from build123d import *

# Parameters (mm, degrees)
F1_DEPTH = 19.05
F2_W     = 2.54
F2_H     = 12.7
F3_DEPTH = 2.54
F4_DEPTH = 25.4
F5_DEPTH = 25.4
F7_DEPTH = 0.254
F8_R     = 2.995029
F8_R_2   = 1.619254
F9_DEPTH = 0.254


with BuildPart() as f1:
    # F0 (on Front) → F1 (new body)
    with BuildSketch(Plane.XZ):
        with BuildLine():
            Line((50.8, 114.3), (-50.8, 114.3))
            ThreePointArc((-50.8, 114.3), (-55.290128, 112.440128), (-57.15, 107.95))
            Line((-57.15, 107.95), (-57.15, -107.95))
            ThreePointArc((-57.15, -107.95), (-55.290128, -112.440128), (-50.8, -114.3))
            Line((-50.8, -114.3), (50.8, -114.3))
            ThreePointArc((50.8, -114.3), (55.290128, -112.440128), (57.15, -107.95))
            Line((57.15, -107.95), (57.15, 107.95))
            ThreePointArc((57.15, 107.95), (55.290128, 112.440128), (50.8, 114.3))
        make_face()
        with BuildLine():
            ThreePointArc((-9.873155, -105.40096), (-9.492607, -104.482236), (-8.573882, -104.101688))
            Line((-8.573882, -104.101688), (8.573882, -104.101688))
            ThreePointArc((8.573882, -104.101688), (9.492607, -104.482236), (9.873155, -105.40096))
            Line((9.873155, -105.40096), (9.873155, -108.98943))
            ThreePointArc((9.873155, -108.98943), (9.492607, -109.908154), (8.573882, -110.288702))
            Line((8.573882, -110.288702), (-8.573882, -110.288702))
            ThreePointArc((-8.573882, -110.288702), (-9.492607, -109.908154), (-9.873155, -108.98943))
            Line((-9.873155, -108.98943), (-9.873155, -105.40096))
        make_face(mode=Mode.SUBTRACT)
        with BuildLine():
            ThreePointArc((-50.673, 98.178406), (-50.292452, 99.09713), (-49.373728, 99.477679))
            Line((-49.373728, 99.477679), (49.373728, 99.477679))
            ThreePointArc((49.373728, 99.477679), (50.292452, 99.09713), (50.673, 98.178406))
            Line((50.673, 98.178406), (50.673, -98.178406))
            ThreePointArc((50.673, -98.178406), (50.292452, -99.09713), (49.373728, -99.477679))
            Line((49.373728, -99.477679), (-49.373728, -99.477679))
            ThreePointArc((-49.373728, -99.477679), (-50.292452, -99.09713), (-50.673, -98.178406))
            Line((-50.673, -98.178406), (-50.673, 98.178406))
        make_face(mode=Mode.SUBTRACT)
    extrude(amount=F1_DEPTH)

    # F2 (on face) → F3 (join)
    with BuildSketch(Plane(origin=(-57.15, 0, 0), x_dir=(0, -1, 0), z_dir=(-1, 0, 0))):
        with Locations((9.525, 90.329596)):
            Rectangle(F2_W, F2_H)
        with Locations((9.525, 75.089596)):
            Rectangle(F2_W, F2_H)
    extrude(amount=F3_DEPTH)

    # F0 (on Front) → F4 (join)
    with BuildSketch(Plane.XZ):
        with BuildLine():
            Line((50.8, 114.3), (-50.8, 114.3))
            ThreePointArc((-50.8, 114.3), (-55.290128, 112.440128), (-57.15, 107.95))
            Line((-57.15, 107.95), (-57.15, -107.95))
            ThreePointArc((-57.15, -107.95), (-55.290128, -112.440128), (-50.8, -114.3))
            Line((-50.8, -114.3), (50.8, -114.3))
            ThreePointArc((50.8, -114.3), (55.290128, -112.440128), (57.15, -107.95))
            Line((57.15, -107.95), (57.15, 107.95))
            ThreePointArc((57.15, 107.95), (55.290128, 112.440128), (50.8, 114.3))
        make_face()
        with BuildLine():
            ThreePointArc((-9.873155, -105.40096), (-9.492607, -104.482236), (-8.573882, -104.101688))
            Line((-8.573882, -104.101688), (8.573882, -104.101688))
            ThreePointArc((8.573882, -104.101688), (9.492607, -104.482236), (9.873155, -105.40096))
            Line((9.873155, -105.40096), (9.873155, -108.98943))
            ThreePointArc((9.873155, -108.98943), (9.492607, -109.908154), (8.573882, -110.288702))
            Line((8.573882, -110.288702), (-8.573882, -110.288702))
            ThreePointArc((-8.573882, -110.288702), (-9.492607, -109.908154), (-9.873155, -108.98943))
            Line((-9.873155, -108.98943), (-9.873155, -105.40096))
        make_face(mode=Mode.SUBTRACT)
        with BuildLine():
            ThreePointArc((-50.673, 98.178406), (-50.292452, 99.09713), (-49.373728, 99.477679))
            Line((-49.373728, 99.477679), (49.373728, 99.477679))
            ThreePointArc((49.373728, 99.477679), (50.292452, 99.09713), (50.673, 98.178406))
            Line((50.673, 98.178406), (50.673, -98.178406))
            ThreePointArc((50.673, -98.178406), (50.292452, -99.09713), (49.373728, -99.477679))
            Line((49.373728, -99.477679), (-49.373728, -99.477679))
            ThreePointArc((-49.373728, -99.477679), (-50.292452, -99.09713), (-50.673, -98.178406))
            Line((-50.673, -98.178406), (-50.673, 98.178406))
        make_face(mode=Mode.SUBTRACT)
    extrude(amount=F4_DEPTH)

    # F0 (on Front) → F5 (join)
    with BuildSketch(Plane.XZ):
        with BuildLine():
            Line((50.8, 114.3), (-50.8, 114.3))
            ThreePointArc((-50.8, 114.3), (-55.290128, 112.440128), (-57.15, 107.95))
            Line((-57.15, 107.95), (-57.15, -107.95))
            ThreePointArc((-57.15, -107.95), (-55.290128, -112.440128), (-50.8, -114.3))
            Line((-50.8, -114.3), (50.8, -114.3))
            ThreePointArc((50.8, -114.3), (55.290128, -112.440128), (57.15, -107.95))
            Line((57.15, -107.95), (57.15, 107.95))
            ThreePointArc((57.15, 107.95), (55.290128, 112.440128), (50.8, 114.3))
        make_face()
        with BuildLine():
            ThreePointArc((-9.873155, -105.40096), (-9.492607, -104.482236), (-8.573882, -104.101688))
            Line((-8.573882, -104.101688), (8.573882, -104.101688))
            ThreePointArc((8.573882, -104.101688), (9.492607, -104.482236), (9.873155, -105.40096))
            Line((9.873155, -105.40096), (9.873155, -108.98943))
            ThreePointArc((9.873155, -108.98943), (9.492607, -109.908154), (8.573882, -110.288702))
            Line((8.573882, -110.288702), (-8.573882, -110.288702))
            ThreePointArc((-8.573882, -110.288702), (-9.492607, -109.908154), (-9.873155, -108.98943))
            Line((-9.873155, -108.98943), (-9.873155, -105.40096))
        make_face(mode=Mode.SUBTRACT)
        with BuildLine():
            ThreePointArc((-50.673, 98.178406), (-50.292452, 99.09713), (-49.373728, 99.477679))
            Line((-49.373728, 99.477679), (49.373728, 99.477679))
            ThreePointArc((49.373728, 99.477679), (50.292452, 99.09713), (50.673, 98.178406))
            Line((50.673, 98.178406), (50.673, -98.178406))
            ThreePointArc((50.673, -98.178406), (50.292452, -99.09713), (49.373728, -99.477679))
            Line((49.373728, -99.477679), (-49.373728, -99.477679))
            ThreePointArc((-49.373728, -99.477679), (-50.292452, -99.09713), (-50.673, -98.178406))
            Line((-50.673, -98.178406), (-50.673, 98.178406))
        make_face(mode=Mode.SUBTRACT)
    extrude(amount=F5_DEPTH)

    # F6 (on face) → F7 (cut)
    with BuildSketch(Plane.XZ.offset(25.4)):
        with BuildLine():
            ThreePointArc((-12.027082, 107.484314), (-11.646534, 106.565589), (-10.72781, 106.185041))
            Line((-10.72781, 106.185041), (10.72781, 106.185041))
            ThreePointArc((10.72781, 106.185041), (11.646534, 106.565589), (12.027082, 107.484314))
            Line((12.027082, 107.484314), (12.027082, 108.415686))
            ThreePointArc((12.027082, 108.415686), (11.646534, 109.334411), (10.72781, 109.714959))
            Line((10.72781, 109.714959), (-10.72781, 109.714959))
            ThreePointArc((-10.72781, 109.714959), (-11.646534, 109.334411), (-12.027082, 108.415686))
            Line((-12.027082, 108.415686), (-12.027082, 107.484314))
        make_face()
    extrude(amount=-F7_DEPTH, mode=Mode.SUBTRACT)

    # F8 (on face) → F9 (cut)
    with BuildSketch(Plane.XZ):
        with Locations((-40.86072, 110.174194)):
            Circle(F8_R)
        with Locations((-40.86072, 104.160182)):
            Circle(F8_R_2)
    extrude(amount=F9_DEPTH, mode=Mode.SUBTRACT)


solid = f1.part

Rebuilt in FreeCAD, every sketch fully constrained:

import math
import FreeCAD as App
import Part
import Sketcher
from FreeCAD import Vector
Q = App.Units.Quantity


def add_polygon(sketch, points):
    """Adds a closed chain of lines whose ends are joined by coincident constraints."""
    first, n = sketch.GeometryCount, len(points)
    for a, b in zip(points, points[1:] + points[:1]):
        sketch.addGeometry(Part.LineSegment(App.Vector(*a, 0), App.Vector(*b, 0)), False)
    for i in range(n):
        sketch.addConstraint(Sketcher.Constraint("Coincident", first + i, 2, first + (i + 1) % n, 1))

doc = App.newDocument("Part")
body = doc.addObject("PartDesign::Body", "Body")

# Sketch on XZ plane
sketch1 = doc.addObject("Sketcher::SketchObject", "Sketch")
body.addObject(sketch1)
sketch1.AttachmentSupport = (doc.XZ_Plane, [""])
sketch1.MapMode = "FlatFace"
sketch1.addGeometry([
    Part.LineSegment(Vector(50.8, 114.3, 0), Vector(-50.8, 114.3, 0)),  # 0
    Part.ArcOfCircle(Part.Circle(Vector(-50.8, 107.95, 0), Vector(0, 0, 1), 6.35), math.radians(90.000002), math.radians(179.999998)),  # 1
    Part.LineSegment(Vector(-57.15, 107.95, 0), Vector(-57.15, -107.95, 0)),  # 2
    Part.ArcOfCircle(Part.Circle(Vector(-50.8, -107.95, 0), Vector(0, 0, 1), 6.35), math.radians(-179.999998), math.radians(-90.000002)),  # 3
    Part.LineSegment(Vector(-50.8, -114.3, 0), Vector(50.8, -114.3, 0)),  # 4
    Part.ArcOfCircle(Part.Circle(Vector(50.8, -107.95, 0), Vector(0, 0, 1), 6.35), math.radians(-89.999998), math.radians(-0.000002)),  # 5
    Part.LineSegment(Vector(57.15, -107.95, 0), Vector(57.15, 107.95, 0)),  # 6
    Part.ArcOfCircle(Part.Circle(Vector(50.8, 107.95, 0), Vector(0, 0, 1), 6.35), math.radians(0.000002), math.radians(89.999998)),  # 7
    Part.LineSegment(Vector(-9.873155, -108.98943, 0), Vector(-9.873155, -105.40096, 0)),  # 8
    Part.ArcOfCircle(Part.Circle(Vector(-8.573883, -105.40096, 0), Vector(0, 0, 1), 1.299272), math.radians(89.999962), math.radians(179.999994)),  # 9
    Part.LineSegment(Vector(-8.573882, -104.101688, 0), Vector(8.573882, -104.101688, 0)),  # 10
    Part.ArcOfCircle(Part.Circle(Vector(8.573883, -105.40096, 0), Vector(0, 0, 1), 1.299272), math.radians(0.000006), math.radians(90.000038)),  # 11
    Part.LineSegment(Vector(9.873155, -105.40096, 0), Vector(9.873155, -108.98943, 0)),  # 12
    Part.ArcOfCircle(Part.Circle(Vector(8.573883, -108.98943, 0), Vector(0, 0, 1), 1.299272), math.radians(-90.000038), math.radians(-0.000006)),  # 13
    Part.LineSegment(Vector(8.573882, -110.288702, 0), Vector(-8.573882, -110.288702, 0)),  # 14
    Part.ArcOfCircle(Part.Circle(Vector(-8.573883, -108.98943, 0), Vector(0, 0, 1), 1.299272), math.radians(-179.999994), math.radians(-89.999962)),  # 15
    Part.LineSegment(Vector(-50.673, -98.178406, 0), Vector(-50.673, 98.178406, 0)),  # 16
    Part.ArcOfCircle(Part.Circle(Vector(-49.373726, 98.178405, 0), Vector(0, 0, 1), 1.299274), math.radians(90.000082), math.radians(179.999963)),  # 17
    Part.LineSegment(Vector(-49.373728, 99.477679, 0), Vector(49.373728, 99.477679, 0)),  # 18
    Part.ArcOfCircle(Part.Circle(Vector(49.373726, 98.178405, 0), Vector(0, 0, 1), 1.299274), math.radians(0.000037), math.radians(89.999918)),  # 19
    Part.LineSegment(Vector(50.673, 98.178406, 0), Vector(50.673, -98.178406, 0)),  # 20
    Part.ArcOfCircle(Part.Circle(Vector(49.373726, -98.178405, 0), Vector(0, 0, 1), 1.299274), math.radians(-89.999918), math.radians(-0.000037)),  # 21
    Part.LineSegment(Vector(49.373728, -99.477679, 0), Vector(-49.373728, -99.477679, 0)),  # 22
    Part.ArcOfCircle(Part.Circle(Vector(-49.373726, -98.178405, 0), Vector(0, 0, 1), 1.299274), math.radians(-179.999963), math.radians(-90.000082)),  # 23
], False)
sketch1.addConstraint([
    Sketcher.Constraint("Tangent", 0, 2, 1, 1),
    Sketcher.Constraint("Tangent", 1, 2, 2, 1),
    Sketcher.Constraint("Tangent", 2, 2, 3, 1),
    Sketcher.Constraint("Tangent", 3, 2, 4, 1),
    Sketcher.Constraint("Tangent", 4, 2, 5, 1),
    Sketcher.Constraint("Tangent", 5, 2, 6, 1),
    Sketcher.Constraint("Tangent", 6, 2, 7, 1),
    Sketcher.Constraint("Tangent", 7, 2, 0, 1),
    Sketcher.Constraint("Tangent", 8, 2, 9, 2),
    Sketcher.Constraint("Tangent", 9, 1, 10, 1),
    Sketcher.Constraint("Tangent", 10, 2, 11, 2),
    Sketcher.Constraint("Tangent", 11, 1, 12, 1),
    Sketcher.Constraint("Tangent", 12, 2, 13, 2),
    Sketcher.Constraint("Tangent", 13, 1, 14, 1),
    Sketcher.Constraint("Tangent", 14, 2, 15, 2),
    Sketcher.Constraint("Tangent", 15, 1, 8, 1),
    Sketcher.Constraint("Tangent", 16, 2, 17, 2),
    Sketcher.Constraint("Tangent", 17, 1, 18, 1),
    Sketcher.Constraint("Tangent", 18, 2, 19, 2),
    Sketcher.Constraint("Tangent", 19, 1, 20, 1),
    Sketcher.Constraint("Tangent", 20, 2, 21, 2),
    Sketcher.Constraint("Tangent", 21, 1, 22, 1),
    Sketcher.Constraint("Tangent", 22, 2, 23, 2),
    Sketcher.Constraint("Tangent", 23, 1, 16, 1),
    Sketcher.Constraint("Horizontal", 0),
    Sketcher.Constraint("Vertical", 2),
    Sketcher.Constraint("Horizontal", 4),
    Sketcher.Constraint("Vertical", 6),
    Sketcher.Constraint("Vertical", 8),
    Sketcher.Constraint("Horizontal", 10),
    Sketcher.Constraint("Vertical", 12),
    Sketcher.Constraint("Horizontal", 14),
    Sketcher.Constraint("Vertical", 16),
    Sketcher.Constraint("Horizontal", 18),
    Sketcher.Constraint("Vertical", 20),
    Sketcher.Constraint("Horizontal", 22),
    Sketcher.Constraint("Equal", 1, 3),
    Sketcher.Constraint("Equal", 3, 5),
    Sketcher.Constraint("Equal", 5, 7),
    Sketcher.Constraint("Equal", 9, 11),
    Sketcher.Constraint("Equal", 11, 13),
    Sketcher.Constraint("Equal", 13, 15),
    Sketcher.Constraint("Equal", 15, 17),
    Sketcher.Constraint("Equal", 17, 19),
    Sketcher.Constraint("Equal", 19, 21),
    Sketcher.Constraint("Equal", 21, 23),
    Sketcher.Constraint("Symmetric", 1, 3, 5, 3, -1, 1),
    Sketcher.Constraint("Symmetric", 17, 3, 21, 3, -1, 1),
    Sketcher.Constraint("DistanceX", 0, 2, 0, 1, Q("4 in")),
    Sketcher.Constraint("Radius", 1, Q("0.25 in")),
    Sketcher.Constraint("DistanceY", 2, 2, 2, 1, Q("8.5 in")),
    Sketcher.Constraint("DistanceX", 16, 2, -1, 1, Q("1.995 in")),
    Sketcher.Constraint("Radius", 9, Q("1.299272 mm")),
    Sketcher.Constraint("DistanceY", 8, 2, 22, 2, Q("0.2332 in")),
    Sketcher.Constraint("DistanceY", 8, 1, 8, 2, Q("3.58847 mm")),
    Sketcher.Constraint("DistanceY", 16, 1, 16, 2, Q("196.356812 mm")),
    Sketcher.Constraint("DistanceX", 10, 1, 10, 2, Q("17.147764 mm")),
    Sketcher.Constraint("DistanceX", 9, 1, -1, 1, Q("8.573882 mm")),
])
pad1 = doc.addObject("PartDesign::Pad", "Pad")
body.addObject(pad1)
pad1.Profile = sketch1
pad1.Length = Q("0.75 in")

# Sketch on YZ plane
sketch2 = doc.addObject("Sketcher::SketchObject", "Sketch001")
body.addObject(sketch2)
sketch2.AttachmentSupport = (doc.YZ_Plane, [""])
sketch2.MapMode = "FlatFace"
sketch2.AttachmentOffset = App.Placement(Vector(0, 0, -2.25 * 25.4), App.Rotation())
add_polygon(sketch2, [(-8.255, 96.679596), (-8.255, 83.979596), (-10.795, 83.979596), (-10.795, 96.679596)])  # lines 0-3
add_polygon(sketch2, [(-8.255, 81.439596), (-8.255, 68.739596), (-10.795, 68.739596), (-10.795, 81.439596)])  # lines 4-7
sketch2.addConstraint([
    Sketcher.Constraint("Vertical", 0),
    Sketcher.Constraint("Horizontal", 1),
    Sketcher.Constraint("Vertical", 2),
    Sketcher.Constraint("Horizontal", 3),
    Sketcher.Constraint("Vertical", 4),
    Sketcher.Constraint("Horizontal", 5),
    Sketcher.Constraint("Vertical", 6),
    Sketcher.Constraint("Horizontal", 7),
    Sketcher.Constraint("Vertical", 3, 2, 4, 2),
    Sketcher.Constraint("Vertical", 2, 2, 5, 2),
    Sketcher.Constraint("Equal", 2, 4),
    Sketcher.Constraint("DistanceX", 1, 2, 1, 1, Q("0.1 in")),
    Sketcher.Constraint("DistanceY", 0, 2, 0, 1, Q("0.5 in")),
    Sketcher.Constraint("DistanceY", 4, 2, 0, 2, Q("0.6 in")),
    Sketcher.Constraint("DistanceX", 0, 2, -1, 1, Q("0.325 in")),
    Sketcher.Constraint("DistanceY", -1, 1, 0, 2, Q("83.979596 mm")),
])
pad2 = doc.addObject("PartDesign::Pad", "Pad001")
body.addObject(pad2)
pad2.Profile = sketch2
pad2.Length = Q("0.1 in")
pad2.Reversed = True

# Sketch on XZ plane
sketch3 = doc.addObject("Sketcher::SketchObject", "Sketch002")
body.addObject(sketch3)
sketch3.AttachmentSupport = (doc.XZ_Plane, [""])
sketch3.MapMode = "FlatFace"
sketch3.addGeometry([
    Part.LineSegment(Vector(50.8, 114.3, 0), Vector(-50.8, 114.3, 0)),  # 0
    Part.ArcOfCircle(Part.Circle(Vector(-50.8, 107.95, 0), Vector(0, 0, 1), 6.35), math.radians(90.000002), math.radians(179.999998)),  # 1
    Part.LineSegment(Vector(-57.15, 107.95, 0), Vector(-57.15, -107.95, 0)),  # 2
    Part.ArcOfCircle(Part.Circle(Vector(-50.8, -107.95, 0), Vector(0, 0, 1), 6.35), math.radians(-179.999998), math.radians(-90.000002)),  # 3
    Part.LineSegment(Vector(-50.8, -114.3, 0), Vector(50.8, -114.3, 0)),  # 4
    Part.ArcOfCircle(Part.Circle(Vector(50.8, -107.95, 0), Vector(0, 0, 1), 6.35), math.radians(-89.999998), math.radians(-0.000002)),  # 5
    Part.LineSegment(Vector(57.15, -107.95, 0), Vector(57.15, 107.95, 0)),  # 6
    Part.ArcOfCircle(Part.Circle(Vector(50.8, 107.95, 0), Vector(0, 0, 1), 6.35), math.radians(0.000002), math.radians(89.999998)),  # 7
    Part.LineSegment(Vector(-9.873155, -108.98943, 0), Vector(-9.873155, -105.40096, 0)),  # 8
    Part.ArcOfCircle(Part.Circle(Vector(-8.573883, -105.40096, 0), Vector(0, 0, 1), 1.299272), math.radians(89.999962), math.radians(179.999994)),  # 9
    Part.LineSegment(Vector(-8.573882, -104.101688, 0), Vector(8.573882, -104.101688, 0)),  # 10
    Part.ArcOfCircle(Part.Circle(Vector(8.573883, -105.40096, 0), Vector(0, 0, 1), 1.299272), math.radians(0.000006), math.radians(90.000038)),  # 11
    Part.LineSegment(Vector(9.873155, -105.40096, 0), Vector(9.873155, -108.98943, 0)),  # 12
    Part.ArcOfCircle(Part.Circle(Vector(8.573883, -108.98943, 0), Vector(0, 0, 1), 1.299272), math.radians(-90.000038), math.radians(-0.000006)),  # 13
    Part.LineSegment(Vector(8.573882, -110.288702, 0), Vector(-8.573882, -110.288702, 0)),  # 14
    Part.ArcOfCircle(Part.Circle(Vector(-8.573883, -108.98943, 0), Vector(0, 0, 1), 1.299272), math.radians(-179.999994), math.radians(-89.999962)),  # 15
    Part.LineSegment(Vector(-50.673, -98.178406, 0), Vector(-50.673, 98.178406, 0)),  # 16
    Part.ArcOfCircle(Part.Circle(Vector(-49.373726, 98.178405, 0), Vector(0, 0, 1), 1.299274), math.radians(90.000082), math.radians(179.999963)),  # 17
    Part.LineSegment(Vector(-49.373728, 99.477679, 0), Vector(49.373728, 99.477679, 0)),  # 18
    Part.ArcOfCircle(Part.Circle(Vector(49.373726, 98.178405, 0), Vector(0, 0, 1), 1.299274), math.radians(0.000037), math.radians(89.999918)),  # 19
    Part.LineSegment(Vector(50.673, 98.178406, 0), Vector(50.673, -98.178406, 0)),  # 20
    Part.ArcOfCircle(Part.Circle(Vector(49.373726, -98.178405, 0), Vector(0, 0, 1), 1.299274), math.radians(-89.999918), math.radians(-0.000037)),  # 21
    Part.LineSegment(Vector(49.373728, -99.477679, 0), Vector(-49.373728, -99.477679, 0)),  # 22
    Part.ArcOfCircle(Part.Circle(Vector(-49.373726, -98.178405, 0), Vector(0, 0, 1), 1.299274), math.radians(-179.999963), math.radians(-90.000082)),  # 23
], False)
sketch3.addConstraint([
    Sketcher.Constraint("Tangent", 0, 2, 1, 1),
    Sketcher.Constraint("Tangent", 1, 2, 2, 1),
    Sketcher.Constraint("Tangent", 2, 2, 3, 1),
    Sketcher.Constraint("Tangent", 3, 2, 4, 1),
    Sketcher.Constraint("Tangent", 4, 2, 5, 1),
    Sketcher.Constraint("Tangent", 5, 2, 6, 1),
    Sketcher.Constraint("Tangent", 6, 2, 7, 1),
    Sketcher.Constraint("Tangent", 7, 2, 0, 1),
    Sketcher.Constraint("Tangent", 8, 2, 9, 2),
    Sketcher.Constraint("Tangent", 9, 1, 10, 1),
    Sketcher.Constraint("Tangent", 10, 2, 11, 2),
    Sketcher.Constraint("Tangent", 11, 1, 12, 1),
    Sketcher.Constraint("Tangent", 12, 2, 13, 2),
    Sketcher.Constraint("Tangent", 13, 1, 14, 1),
    Sketcher.Constraint("Tangent", 14, 2, 15, 2),
    Sketcher.Constraint("Tangent", 15, 1, 8, 1),
    Sketcher.Constraint("Tangent", 16, 2, 17, 2),
    Sketcher.Constraint("Tangent", 17, 1, 18, 1),
    Sketcher.Constraint("Tangent", 18, 2, 19, 2),
    Sketcher.Constraint("Tangent", 19, 1, 20, 1),
    Sketcher.Constraint("Tangent", 20, 2, 21, 2),
    Sketcher.Constraint("Tangent", 21, 1, 22, 1),
    Sketcher.Constraint("Tangent", 22, 2, 23, 2),
    Sketcher.Constraint("Tangent", 23, 1, 16, 1),
    Sketcher.Constraint("Horizontal", 0),
    Sketcher.Constraint("Vertical", 2),
    Sketcher.Constraint("Horizontal", 4),
    Sketcher.Constraint("Vertical", 6),
    Sketcher.Constraint("Vertical", 8),
    Sketcher.Constraint("Horizontal", 10),
    Sketcher.Constraint("Vertical", 12),
    Sketcher.Constraint("Horizontal", 14),
    Sketcher.Constraint("Vertical", 16),
    Sketcher.Constraint("Horizontal", 18),
    Sketcher.Constraint("Vertical", 20),
    Sketcher.Constraint("Horizontal", 22),
    Sketcher.Constraint("Equal", 1, 3),
    Sketcher.Constraint("Equal", 3, 5),
    Sketcher.Constraint("Equal", 5, 7),
    Sketcher.Constraint("Equal", 9, 11),
    Sketcher.Constraint("Equal", 11, 13),
    Sketcher.Constraint("Equal", 13, 15),
    Sketcher.Constraint("Equal", 15, 17),
    Sketcher.Constraint("Equal", 17, 19),
    Sketcher.Constraint("Equal", 19, 21),
    Sketcher.Constraint("Equal", 21, 23),
    Sketcher.Constraint("Symmetric", 1, 3, 5, 3, -1, 1),
    Sketcher.Constraint("Symmetric", 17, 3, 21, 3, -1, 1),
    Sketcher.Constraint("DistanceX", 0, 2, 0, 1, Q("4 in")),
    Sketcher.Constraint("Radius", 1, Q("0.25 in")),
    Sketcher.Constraint("DistanceY", 2, 2, 2, 1, Q("8.5 in")),
    Sketcher.Constraint("DistanceX", 16, 2, -1, 1, Q("1.995 in")),
    Sketcher.Constraint("Radius", 9, Q("1.299272 mm")),
    Sketcher.Constraint("DistanceY", 8, 2, 22, 2, Q("0.2332 in")),
    Sketcher.Constraint("DistanceY", 8, 1, 8, 2, Q("3.58847 mm")),
    Sketcher.Constraint("DistanceY", 16, 1, 16, 2, Q("196.356812 mm")),
    Sketcher.Constraint("DistanceX", 10, 1, 10, 2, Q("17.147764 mm")),
    Sketcher.Constraint("DistanceX", 9, 1, -1, 1, Q("8.573882 mm")),
])
pad3 = doc.addObject("PartDesign::Pad", "Pad002")
body.addObject(pad3)
pad3.Profile = sketch3
pad3.Length = Q("1 in")

# Sketch on XZ plane
sketch4 = doc.addObject("Sketcher::SketchObject", "Sketch003")
body.addObject(sketch4)
sketch4.AttachmentSupport = (doc.XZ_Plane, [""])
sketch4.MapMode = "FlatFace"
sketch4.addGeometry([
    Part.LineSegment(Vector(50.8, 114.3, 0), Vector(-50.8, 114.3, 0)),  # 0
    Part.ArcOfCircle(Part.Circle(Vector(-50.8, 107.95, 0), Vector(0, 0, 1), 6.35), math.radians(90.000002), math.radians(179.999998)),  # 1
    Part.LineSegment(Vector(-57.15, 107.95, 0), Vector(-57.15, -107.95, 0)),  # 2
    Part.ArcOfCircle(Part.Circle(Vector(-50.8, -107.95, 0), Vector(0, 0, 1), 6.35), math.radians(-179.999998), math.radians(-90.000002)),  # 3
    Part.LineSegment(Vector(-50.8, -114.3, 0), Vector(50.8, -114.3, 0)),  # 4
    Part.ArcOfCircle(Part.Circle(Vector(50.8, -107.95, 0), Vector(0, 0, 1), 6.35), math.radians(-89.999998), math.radians(-0.000002)),  # 5
    Part.LineSegment(Vector(57.15, -107.95, 0), Vector(57.15, 107.95, 0)),  # 6
    Part.ArcOfCircle(Part.Circle(Vector(50.8, 107.95, 0), Vector(0, 0, 1), 6.35), math.radians(0.000002), math.radians(89.999998)),  # 7
    Part.LineSegment(Vector(-9.873155, -108.98943, 0), Vector(-9.873155, -105.40096, 0)),  # 8
    Part.ArcOfCircle(Part.Circle(Vector(-8.573883, -105.40096, 0), Vector(0, 0, 1), 1.299272), math.radians(89.999962), math.radians(179.999994)),  # 9
    Part.LineSegment(Vector(-8.573882, -104.101688, 0), Vector(8.573882, -104.101688, 0)),  # 10
    Part.ArcOfCircle(Part.Circle(Vector(8.573883, -105.40096, 0), Vector(0, 0, 1), 1.299272), math.radians(0.000006), math.radians(90.000038)),  # 11
    Part.LineSegment(Vector(9.873155, -105.40096, 0), Vector(9.873155, -108.98943, 0)),  # 12
    Part.ArcOfCircle(Part.Circle(Vector(8.573883, -108.98943, 0), Vector(0, 0, 1), 1.299272), math.radians(-90.000038), math.radians(-0.000006)),  # 13
    Part.LineSegment(Vector(8.573882, -110.288702, 0), Vector(-8.573882, -110.288702, 0)),  # 14
    Part.ArcOfCircle(Part.Circle(Vector(-8.573883, -108.98943, 0), Vector(0, 0, 1), 1.299272), math.radians(-179.999994), math.radians(-89.999962)),  # 15
    Part.LineSegment(Vector(-50.673, -98.178406, 0), Vector(-50.673, 98.178406, 0)),  # 16
    Part.ArcOfCircle(Part.Circle(Vector(-49.373726, 98.178405, 0), Vector(0, 0, 1), 1.299274), math.radians(90.000082), math.radians(179.999963)),  # 17
    Part.LineSegment(Vector(-49.373728, 99.477679, 0), Vector(49.373728, 99.477679, 0)),  # 18
    Part.ArcOfCircle(Part.Circle(Vector(49.373726, 98.178405, 0), Vector(0, 0, 1), 1.299274), math.radians(0.000037), math.radians(89.999918)),  # 19
    Part.LineSegment(Vector(50.673, 98.178406, 0), Vector(50.673, -98.178406, 0)),  # 20
    Part.ArcOfCircle(Part.Circle(Vector(49.373726, -98.178405, 0), Vector(0, 0, 1), 1.299274), math.radians(-89.999918), math.radians(-0.000037)),  # 21
    Part.LineSegment(Vector(49.373728, -99.477679, 0), Vector(-49.373728, -99.477679, 0)),  # 22
    Part.ArcOfCircle(Part.Circle(Vector(-49.373726, -98.178405, 0), Vector(0, 0, 1), 1.299274), math.radians(-179.999963), math.radians(-90.000082)),  # 23
], False)
sketch4.addConstraint([
    Sketcher.Constraint("Tangent", 0, 2, 1, 1),
    Sketcher.Constraint("Tangent", 1, 2, 2, 1),
    Sketcher.Constraint("Tangent", 2, 2, 3, 1),
    Sketcher.Constraint("Tangent", 3, 2, 4, 1),
    Sketcher.Constraint("Tangent", 4, 2, 5, 1),
    Sketcher.Constraint("Tangent", 5, 2, 6, 1),
    Sketcher.Constraint("Tangent", 6, 2, 7, 1),
    Sketcher.Constraint("Tangent", 7, 2, 0, 1),
    Sketcher.Constraint("Tangent", 8, 2, 9, 2),
    Sketcher.Constraint("Tangent", 9, 1, 10, 1),
    Sketcher.Constraint("Tangent", 10, 2, 11, 2),
    Sketcher.Constraint("Tangent", 11, 1, 12, 1),
    Sketcher.Constraint("Tangent", 12, 2, 13, 2),
    Sketcher.Constraint("Tangent", 13, 1, 14, 1),
    Sketcher.Constraint("Tangent", 14, 2, 15, 2),
    Sketcher.Constraint("Tangent", 15, 1, 8, 1),
    Sketcher.Constraint("Tangent", 16, 2, 17, 2),
    Sketcher.Constraint("Tangent", 17, 1, 18, 1),
    Sketcher.Constraint("Tangent", 18, 2, 19, 2),
    Sketcher.Constraint("Tangent", 19, 1, 20, 1),
    Sketcher.Constraint("Tangent", 20, 2, 21, 2),
    Sketcher.Constraint("Tangent", 21, 1, 22, 1),
    Sketcher.Constraint("Tangent", 22, 2, 23, 2),
    Sketcher.Constraint("Tangent", 23, 1, 16, 1),
    Sketcher.Constraint("Horizontal", 0),
    Sketcher.Constraint("Vertical", 2),
    Sketcher.Constraint("Horizontal", 4),
    Sketcher.Constraint("Vertical", 6),
    Sketcher.Constraint("Vertical", 8),
    Sketcher.Constraint("Horizontal", 10),
    Sketcher.Constraint("Vertical", 12),
    Sketcher.Constraint("Horizontal", 14),
    Sketcher.Constraint("Vertical", 16),
    Sketcher.Constraint("Horizontal", 18),
    Sketcher.Constraint("Vertical", 20),
    Sketcher.Constraint("Horizontal", 22),
    Sketcher.Constraint("Equal", 1, 3),
    Sketcher.Constraint("Equal", 3, 5),
    Sketcher.Constraint("Equal", 5, 7),
    Sketcher.Constraint("Equal", 9, 11),
    Sketcher.Constraint("Equal", 11, 13),
    Sketcher.Constraint("Equal", 13, 15),
    Sketcher.Constraint("Equal", 15, 17),
    Sketcher.Constraint("Equal", 17, 19),
    Sketcher.Constraint("Equal", 19, 21),
    Sketcher.Constraint("Equal", 21, 23),
    Sketcher.Constraint("Symmetric", 1, 3, 5, 3, -1, 1),
    Sketcher.Constraint("Symmetric", 17, 3, 21, 3, -1, 1),
    Sketcher.Constraint("DistanceX", 0, 2, 0, 1, Q("4 in")),
    Sketcher.Constraint("Radius", 1, Q("0.25 in")),
    Sketcher.Constraint("DistanceY", 2, 2, 2, 1, Q("8.5 in")),
    Sketcher.Constraint("DistanceX", 16, 2, -1, 1, Q("1.995 in")),
    Sketcher.Constraint("Radius", 9, Q("1.299272 mm")),
    Sketcher.Constraint("DistanceY", 8, 2, 22, 2, Q("0.2332 in")),
    Sketcher.Constraint("DistanceY", 8, 1, 8, 2, Q("3.58847 mm")),
    Sketcher.Constraint("DistanceY", 16, 1, 16, 2, Q("196.356812 mm")),
    Sketcher.Constraint("DistanceX", 10, 1, 10, 2, Q("17.147764 mm")),
    Sketcher.Constraint("DistanceX", 9, 1, -1, 1, Q("8.573882 mm")),
])
pad4 = doc.addObject("PartDesign::Pad", "Pad003")
body.addObject(pad4)
pad4.Profile = sketch4
pad4.Length = Q("1 in")

# Sketch on XZ plane
sketch5 = doc.addObject("Sketcher::SketchObject", "Sketch004")
body.addObject(sketch5)
sketch5.AttachmentSupport = (doc.XZ_Plane, [""])
sketch5.MapMode = "FlatFace"
sketch5.AttachmentOffset = App.Placement(Vector(0, 0, 1 * 25.4), App.Rotation())
sketch5.addGeometry([
    Part.ArcOfCircle(Part.Circle(Vector(-10.72781, 107.484313, 0), Vector(0, 0, 1), 1.299272), math.radians(179.999962), math.radians(269.999994)),  # 0
    Part.LineSegment(Vector(-10.72781, 106.185041, 0), Vector(10.72781, 106.185041, 0)),  # 1
    Part.ArcOfCircle(Part.Circle(Vector(10.72781, 107.484313, 0), Vector(0, 0, 1), 1.299272), math.radians(-89.999994), math.radians(0.000038)),  # 2
    Part.LineSegment(Vector(12.027082, 107.484314, 0), Vector(12.027082, 108.415686, 0)),  # 3
    Part.ArcOfCircle(Part.Circle(Vector(10.72781, 108.415687, 0), Vector(0, 0, 1), 1.299272), math.radians(-0.000038), math.radians(89.999994)),  # 4
    Part.LineSegment(Vector(10.72781, 109.714959, 0), Vector(-10.72781, 109.714959, 0)),  # 5
    Part.ArcOfCircle(Part.Circle(Vector(-10.72781, 108.415687, 0), Vector(0, 0, 1), 1.299272), math.radians(90.000006), math.radians(180.000038)),  # 6
    Part.LineSegment(Vector(-12.027082, 108.415686, 0), Vector(-12.027082, 107.484314, 0)),  # 7
], False)
sketch5.addConstraint([
    Sketcher.Constraint("Tangent", 0, 2, 1, 1),
    Sketcher.Constraint("Tangent", 1, 2, 2, 1),
    Sketcher.Constraint("Tangent", 2, 2, 3, 1),
    Sketcher.Constraint("Tangent", 3, 2, 4, 1),
    Sketcher.Constraint("Tangent", 4, 2, 5, 1),
    Sketcher.Constraint("Tangent", 5, 2, 6, 1),
    Sketcher.Constraint("Tangent", 6, 2, 7, 1),
    Sketcher.Constraint("Tangent", 7, 2, 0, 1),
    Sketcher.Constraint("Horizontal", 1),
    Sketcher.Constraint("Vertical", 3),
    Sketcher.Constraint("Horizontal", 5),
    Sketcher.Constraint("Vertical", 7),
    Sketcher.Constraint("Equal", 0, 2),
    Sketcher.Constraint("Equal", 2, 4),
    Sketcher.Constraint("Equal", 4, 6),
    Sketcher.Constraint("Radius", 0, Q("1.299272 mm")),
    Sketcher.Constraint("DistanceX", 1, 1, 1, 2, Q("21.45562 mm")),
    Sketcher.Constraint("DistanceY", 3, 1, 3, 2, Q("0.931372 mm")),
    Sketcher.Constraint("DistanceX", 0, 3, -1, 1, Q("10.72781 mm")),
    Sketcher.Constraint("DistanceY", -1, 1, 0, 2, Q("106.185041 mm")),
])
pocket1 = doc.addObject("PartDesign::Pocket", "Pocket")
body.addObject(pocket1)
pocket1.Profile = sketch5
pocket1.Length = Q("0.01 in")

# Sketch on XZ plane
sketch6 = doc.addObject("Sketcher::SketchObject", "Sketch005")
body.addObject(sketch6)
sketch6.AttachmentSupport = (doc.XZ_Plane, [""])
sketch6.MapMode = "FlatFace"
sketch6.addGeometry([
    Part.Circle(Vector(-40.86072, 110.174194, 0), Vector(0, 0, 1), 2.995029),
    Part.Circle(Vector(-40.86072, 104.160182, 0), Vector(0, 0, 1), 1.619254),
], False)
sketch6.addConstraint([
    Sketcher.Constraint("Vertical", 0, 3, 1, 3),
    Sketcher.Constraint("Diameter", 0, Q("5.990058 mm")),
    Sketcher.Constraint("Diameter", 1, Q("3.238508 mm")),
    Sketcher.Constraint("DistanceX", 0, 3, -1, 1, Q("40.86072 mm")),
    Sketcher.Constraint("DistanceY", 1, 3, 0, 3, Q("6.014012 mm")),
    Sketcher.Constraint("DistanceY", -1, 1, 0, 3, Q("110.174194 mm")),
])
pocket2 = doc.addObject("PartDesign::Pocket", "Pocket001")
body.addObject(pocket2)
pocket2.Profile = sketch6
pocket2.Length = Q("0.01 in")
pocket2.Reversed = True

doc.recompute()
